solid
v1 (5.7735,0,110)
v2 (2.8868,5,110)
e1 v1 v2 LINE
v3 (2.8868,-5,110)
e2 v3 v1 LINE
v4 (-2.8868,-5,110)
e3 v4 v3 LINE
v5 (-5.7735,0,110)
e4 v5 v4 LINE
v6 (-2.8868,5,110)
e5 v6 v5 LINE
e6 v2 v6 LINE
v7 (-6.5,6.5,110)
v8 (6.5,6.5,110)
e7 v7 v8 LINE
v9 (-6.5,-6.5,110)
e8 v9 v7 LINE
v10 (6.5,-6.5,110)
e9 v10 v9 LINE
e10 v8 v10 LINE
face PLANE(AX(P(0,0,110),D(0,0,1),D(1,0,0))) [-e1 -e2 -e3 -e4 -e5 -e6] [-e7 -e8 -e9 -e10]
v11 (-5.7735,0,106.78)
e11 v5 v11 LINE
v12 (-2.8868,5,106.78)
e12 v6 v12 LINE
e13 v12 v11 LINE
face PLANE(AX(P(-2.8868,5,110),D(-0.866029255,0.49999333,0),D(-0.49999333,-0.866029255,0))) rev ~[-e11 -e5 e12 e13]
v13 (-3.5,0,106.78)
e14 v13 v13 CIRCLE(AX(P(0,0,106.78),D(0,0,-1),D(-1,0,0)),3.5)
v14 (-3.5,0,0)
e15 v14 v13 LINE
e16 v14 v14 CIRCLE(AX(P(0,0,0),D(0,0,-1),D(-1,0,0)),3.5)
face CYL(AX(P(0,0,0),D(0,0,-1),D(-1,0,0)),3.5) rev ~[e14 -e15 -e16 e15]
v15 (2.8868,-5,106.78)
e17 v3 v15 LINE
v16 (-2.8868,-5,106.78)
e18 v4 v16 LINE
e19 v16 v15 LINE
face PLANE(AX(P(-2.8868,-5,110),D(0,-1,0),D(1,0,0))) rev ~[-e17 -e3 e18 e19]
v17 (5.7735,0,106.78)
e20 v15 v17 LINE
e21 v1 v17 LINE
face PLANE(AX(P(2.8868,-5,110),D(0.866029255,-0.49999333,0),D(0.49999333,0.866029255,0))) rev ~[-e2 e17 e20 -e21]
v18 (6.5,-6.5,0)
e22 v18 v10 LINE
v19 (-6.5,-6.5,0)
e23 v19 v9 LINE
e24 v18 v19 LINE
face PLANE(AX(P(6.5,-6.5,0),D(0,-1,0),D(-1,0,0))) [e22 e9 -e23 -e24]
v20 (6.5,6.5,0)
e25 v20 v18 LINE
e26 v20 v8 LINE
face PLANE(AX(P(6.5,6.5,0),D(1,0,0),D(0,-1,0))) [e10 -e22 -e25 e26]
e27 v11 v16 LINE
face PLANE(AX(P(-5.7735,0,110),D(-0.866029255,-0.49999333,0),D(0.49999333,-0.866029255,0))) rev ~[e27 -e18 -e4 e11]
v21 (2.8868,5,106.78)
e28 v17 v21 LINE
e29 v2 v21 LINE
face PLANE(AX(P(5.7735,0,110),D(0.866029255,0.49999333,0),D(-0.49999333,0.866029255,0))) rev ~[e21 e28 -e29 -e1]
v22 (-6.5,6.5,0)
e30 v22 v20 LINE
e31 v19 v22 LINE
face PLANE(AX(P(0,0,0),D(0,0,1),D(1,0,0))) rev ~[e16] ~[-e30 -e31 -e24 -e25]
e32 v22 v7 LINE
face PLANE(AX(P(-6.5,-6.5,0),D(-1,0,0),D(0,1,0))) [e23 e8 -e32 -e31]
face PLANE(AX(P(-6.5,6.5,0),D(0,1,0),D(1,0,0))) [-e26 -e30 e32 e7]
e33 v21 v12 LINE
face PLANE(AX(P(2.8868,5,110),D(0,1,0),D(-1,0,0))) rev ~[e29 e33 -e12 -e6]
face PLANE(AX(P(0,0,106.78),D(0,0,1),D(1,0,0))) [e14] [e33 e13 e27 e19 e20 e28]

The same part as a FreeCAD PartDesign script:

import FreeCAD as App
import Part
import Sketcher

V = App.Vector
Q = App.Units.Quantity


def add_polygon(sketch, points):
    """Adds a closed chain of lines whose ends are joined by coincident constraints."""
    first, n = sketch.GeometryCount, len(points)
    for a, b in zip(points, points[1:] + points[:1]):
        sketch.addGeometry(Part.LineSegment(App.Vector(*a, 0), App.Vector(*b, 0)), False)
    for i in range(n):
        sketch.addConstraint(Sketcher.Constraint("Coincident", first + i, 2, first + (i + 1) % n, 1))

doc = App.newDocument("Part")
body = doc.addObject("PartDesign::Body", "Body")

# Sketch on XY plane
sketch1 = body.newObject("Sketcher::SketchObject", "Sketch")
sketch1.AttachmentSupport = (doc.getObject("XY_Plane"), [""])
sketch1.MapMode = "FlatFace"
add_polygon(sketch1, [(-6, -6), (6, -6), (6, 6), (-6, 6)])  # lines 0-3
sketch1.addConstraint([
    Sketcher.Constraint("Horizontal", 0),
    Sketcher.Constraint("Vertical", 1),
    Sketcher.Constraint("Horizontal", 2),
    Sketcher.Constraint("Vertical", 3),
    Sketcher.Constraint("Symmetric", 0, 2, 2, 2, -1, 1),
    Sketcher.Constraint("Equal", 2, 1),
    Sketcher.Constraint("DistanceX", 0, 1, 0, 2, 13.0),
])
pad1 = body.newObject("PartDesign::Pad", "Pad")
pad1.Profile = sketch1
pad1.Length = 110

# Sketch on XY plane
sketch2 = body.newObject("Sketcher::SketchObject", "Sketch001")
sketch2.AttachmentSupport = (doc.getObject("XY_Plane"), [""])
sketch2.MapMode = "FlatFace"
sketch2.AttachmentOffset = App.Placement(V(0, 0, 110), App.Rotation())
add_polygon(sketch2, [(-3, -5), (3, -5), (6, 0), (3, 5), (-3, 5), (-6, 0)])  # lines 0-5
sketch2.addConstraint([
    Sketcher.Constraint("Horizontal", 0),
    Sketcher.Constraint("Horizontal", 3),
    Sketcher.Constraint("Symmetric", 0, 2, 3, 2, -1, 1),
    Sketcher.Constraint("Symmetric", 1, 2, 4, 2, -1, 1),
    Sketcher.Constraint("PointOnObject", 1, 2, -1),
    Sketcher.Constraint("Parallel", 2, 5),
    Sketcher.Constraint("Vertical", 0, 2, 2, 2),
    Sketcher.Constraint("Angle", 1, Q("60.0004 deg")),
    Sketcher.Constraint("DistanceY", 0, 2, -1, 1, 5.0),
    Sketcher.Constraint("DistanceX", 0, 1, 0, 2, 5.7736),
])
pocket1 = body.newObject("PartDesign::Pocket", "Pocket")
pocket1.Profile = sketch2
pocket1.Length = 3.22

# Sketch on XY plane
sketch3 = body.newObject("Sketcher::SketchObject", "Sketch002")
sketch3.AttachmentSupport = (doc.getObject("XY_Plane"), [""])
sketch3.MapMode = "FlatFace"
sketch3.addGeometry(Part.Circle(V(0, 0, 0), V(0, 0, 1), 3.5), False)
sketch3.addConstraint([
    Sketcher.Constraint("Coincident", 0, 3, -1, 1),
    Sketcher.Constraint("Diameter", 0, 7.0),
])
pocket2 = body.newObject("PartDesign::Pocket", "Pocket001")
pocket2.Profile = sketch3
pocket2.Type = "ThroughAll"
pocket2.Reversed = True

doc.recompute()
